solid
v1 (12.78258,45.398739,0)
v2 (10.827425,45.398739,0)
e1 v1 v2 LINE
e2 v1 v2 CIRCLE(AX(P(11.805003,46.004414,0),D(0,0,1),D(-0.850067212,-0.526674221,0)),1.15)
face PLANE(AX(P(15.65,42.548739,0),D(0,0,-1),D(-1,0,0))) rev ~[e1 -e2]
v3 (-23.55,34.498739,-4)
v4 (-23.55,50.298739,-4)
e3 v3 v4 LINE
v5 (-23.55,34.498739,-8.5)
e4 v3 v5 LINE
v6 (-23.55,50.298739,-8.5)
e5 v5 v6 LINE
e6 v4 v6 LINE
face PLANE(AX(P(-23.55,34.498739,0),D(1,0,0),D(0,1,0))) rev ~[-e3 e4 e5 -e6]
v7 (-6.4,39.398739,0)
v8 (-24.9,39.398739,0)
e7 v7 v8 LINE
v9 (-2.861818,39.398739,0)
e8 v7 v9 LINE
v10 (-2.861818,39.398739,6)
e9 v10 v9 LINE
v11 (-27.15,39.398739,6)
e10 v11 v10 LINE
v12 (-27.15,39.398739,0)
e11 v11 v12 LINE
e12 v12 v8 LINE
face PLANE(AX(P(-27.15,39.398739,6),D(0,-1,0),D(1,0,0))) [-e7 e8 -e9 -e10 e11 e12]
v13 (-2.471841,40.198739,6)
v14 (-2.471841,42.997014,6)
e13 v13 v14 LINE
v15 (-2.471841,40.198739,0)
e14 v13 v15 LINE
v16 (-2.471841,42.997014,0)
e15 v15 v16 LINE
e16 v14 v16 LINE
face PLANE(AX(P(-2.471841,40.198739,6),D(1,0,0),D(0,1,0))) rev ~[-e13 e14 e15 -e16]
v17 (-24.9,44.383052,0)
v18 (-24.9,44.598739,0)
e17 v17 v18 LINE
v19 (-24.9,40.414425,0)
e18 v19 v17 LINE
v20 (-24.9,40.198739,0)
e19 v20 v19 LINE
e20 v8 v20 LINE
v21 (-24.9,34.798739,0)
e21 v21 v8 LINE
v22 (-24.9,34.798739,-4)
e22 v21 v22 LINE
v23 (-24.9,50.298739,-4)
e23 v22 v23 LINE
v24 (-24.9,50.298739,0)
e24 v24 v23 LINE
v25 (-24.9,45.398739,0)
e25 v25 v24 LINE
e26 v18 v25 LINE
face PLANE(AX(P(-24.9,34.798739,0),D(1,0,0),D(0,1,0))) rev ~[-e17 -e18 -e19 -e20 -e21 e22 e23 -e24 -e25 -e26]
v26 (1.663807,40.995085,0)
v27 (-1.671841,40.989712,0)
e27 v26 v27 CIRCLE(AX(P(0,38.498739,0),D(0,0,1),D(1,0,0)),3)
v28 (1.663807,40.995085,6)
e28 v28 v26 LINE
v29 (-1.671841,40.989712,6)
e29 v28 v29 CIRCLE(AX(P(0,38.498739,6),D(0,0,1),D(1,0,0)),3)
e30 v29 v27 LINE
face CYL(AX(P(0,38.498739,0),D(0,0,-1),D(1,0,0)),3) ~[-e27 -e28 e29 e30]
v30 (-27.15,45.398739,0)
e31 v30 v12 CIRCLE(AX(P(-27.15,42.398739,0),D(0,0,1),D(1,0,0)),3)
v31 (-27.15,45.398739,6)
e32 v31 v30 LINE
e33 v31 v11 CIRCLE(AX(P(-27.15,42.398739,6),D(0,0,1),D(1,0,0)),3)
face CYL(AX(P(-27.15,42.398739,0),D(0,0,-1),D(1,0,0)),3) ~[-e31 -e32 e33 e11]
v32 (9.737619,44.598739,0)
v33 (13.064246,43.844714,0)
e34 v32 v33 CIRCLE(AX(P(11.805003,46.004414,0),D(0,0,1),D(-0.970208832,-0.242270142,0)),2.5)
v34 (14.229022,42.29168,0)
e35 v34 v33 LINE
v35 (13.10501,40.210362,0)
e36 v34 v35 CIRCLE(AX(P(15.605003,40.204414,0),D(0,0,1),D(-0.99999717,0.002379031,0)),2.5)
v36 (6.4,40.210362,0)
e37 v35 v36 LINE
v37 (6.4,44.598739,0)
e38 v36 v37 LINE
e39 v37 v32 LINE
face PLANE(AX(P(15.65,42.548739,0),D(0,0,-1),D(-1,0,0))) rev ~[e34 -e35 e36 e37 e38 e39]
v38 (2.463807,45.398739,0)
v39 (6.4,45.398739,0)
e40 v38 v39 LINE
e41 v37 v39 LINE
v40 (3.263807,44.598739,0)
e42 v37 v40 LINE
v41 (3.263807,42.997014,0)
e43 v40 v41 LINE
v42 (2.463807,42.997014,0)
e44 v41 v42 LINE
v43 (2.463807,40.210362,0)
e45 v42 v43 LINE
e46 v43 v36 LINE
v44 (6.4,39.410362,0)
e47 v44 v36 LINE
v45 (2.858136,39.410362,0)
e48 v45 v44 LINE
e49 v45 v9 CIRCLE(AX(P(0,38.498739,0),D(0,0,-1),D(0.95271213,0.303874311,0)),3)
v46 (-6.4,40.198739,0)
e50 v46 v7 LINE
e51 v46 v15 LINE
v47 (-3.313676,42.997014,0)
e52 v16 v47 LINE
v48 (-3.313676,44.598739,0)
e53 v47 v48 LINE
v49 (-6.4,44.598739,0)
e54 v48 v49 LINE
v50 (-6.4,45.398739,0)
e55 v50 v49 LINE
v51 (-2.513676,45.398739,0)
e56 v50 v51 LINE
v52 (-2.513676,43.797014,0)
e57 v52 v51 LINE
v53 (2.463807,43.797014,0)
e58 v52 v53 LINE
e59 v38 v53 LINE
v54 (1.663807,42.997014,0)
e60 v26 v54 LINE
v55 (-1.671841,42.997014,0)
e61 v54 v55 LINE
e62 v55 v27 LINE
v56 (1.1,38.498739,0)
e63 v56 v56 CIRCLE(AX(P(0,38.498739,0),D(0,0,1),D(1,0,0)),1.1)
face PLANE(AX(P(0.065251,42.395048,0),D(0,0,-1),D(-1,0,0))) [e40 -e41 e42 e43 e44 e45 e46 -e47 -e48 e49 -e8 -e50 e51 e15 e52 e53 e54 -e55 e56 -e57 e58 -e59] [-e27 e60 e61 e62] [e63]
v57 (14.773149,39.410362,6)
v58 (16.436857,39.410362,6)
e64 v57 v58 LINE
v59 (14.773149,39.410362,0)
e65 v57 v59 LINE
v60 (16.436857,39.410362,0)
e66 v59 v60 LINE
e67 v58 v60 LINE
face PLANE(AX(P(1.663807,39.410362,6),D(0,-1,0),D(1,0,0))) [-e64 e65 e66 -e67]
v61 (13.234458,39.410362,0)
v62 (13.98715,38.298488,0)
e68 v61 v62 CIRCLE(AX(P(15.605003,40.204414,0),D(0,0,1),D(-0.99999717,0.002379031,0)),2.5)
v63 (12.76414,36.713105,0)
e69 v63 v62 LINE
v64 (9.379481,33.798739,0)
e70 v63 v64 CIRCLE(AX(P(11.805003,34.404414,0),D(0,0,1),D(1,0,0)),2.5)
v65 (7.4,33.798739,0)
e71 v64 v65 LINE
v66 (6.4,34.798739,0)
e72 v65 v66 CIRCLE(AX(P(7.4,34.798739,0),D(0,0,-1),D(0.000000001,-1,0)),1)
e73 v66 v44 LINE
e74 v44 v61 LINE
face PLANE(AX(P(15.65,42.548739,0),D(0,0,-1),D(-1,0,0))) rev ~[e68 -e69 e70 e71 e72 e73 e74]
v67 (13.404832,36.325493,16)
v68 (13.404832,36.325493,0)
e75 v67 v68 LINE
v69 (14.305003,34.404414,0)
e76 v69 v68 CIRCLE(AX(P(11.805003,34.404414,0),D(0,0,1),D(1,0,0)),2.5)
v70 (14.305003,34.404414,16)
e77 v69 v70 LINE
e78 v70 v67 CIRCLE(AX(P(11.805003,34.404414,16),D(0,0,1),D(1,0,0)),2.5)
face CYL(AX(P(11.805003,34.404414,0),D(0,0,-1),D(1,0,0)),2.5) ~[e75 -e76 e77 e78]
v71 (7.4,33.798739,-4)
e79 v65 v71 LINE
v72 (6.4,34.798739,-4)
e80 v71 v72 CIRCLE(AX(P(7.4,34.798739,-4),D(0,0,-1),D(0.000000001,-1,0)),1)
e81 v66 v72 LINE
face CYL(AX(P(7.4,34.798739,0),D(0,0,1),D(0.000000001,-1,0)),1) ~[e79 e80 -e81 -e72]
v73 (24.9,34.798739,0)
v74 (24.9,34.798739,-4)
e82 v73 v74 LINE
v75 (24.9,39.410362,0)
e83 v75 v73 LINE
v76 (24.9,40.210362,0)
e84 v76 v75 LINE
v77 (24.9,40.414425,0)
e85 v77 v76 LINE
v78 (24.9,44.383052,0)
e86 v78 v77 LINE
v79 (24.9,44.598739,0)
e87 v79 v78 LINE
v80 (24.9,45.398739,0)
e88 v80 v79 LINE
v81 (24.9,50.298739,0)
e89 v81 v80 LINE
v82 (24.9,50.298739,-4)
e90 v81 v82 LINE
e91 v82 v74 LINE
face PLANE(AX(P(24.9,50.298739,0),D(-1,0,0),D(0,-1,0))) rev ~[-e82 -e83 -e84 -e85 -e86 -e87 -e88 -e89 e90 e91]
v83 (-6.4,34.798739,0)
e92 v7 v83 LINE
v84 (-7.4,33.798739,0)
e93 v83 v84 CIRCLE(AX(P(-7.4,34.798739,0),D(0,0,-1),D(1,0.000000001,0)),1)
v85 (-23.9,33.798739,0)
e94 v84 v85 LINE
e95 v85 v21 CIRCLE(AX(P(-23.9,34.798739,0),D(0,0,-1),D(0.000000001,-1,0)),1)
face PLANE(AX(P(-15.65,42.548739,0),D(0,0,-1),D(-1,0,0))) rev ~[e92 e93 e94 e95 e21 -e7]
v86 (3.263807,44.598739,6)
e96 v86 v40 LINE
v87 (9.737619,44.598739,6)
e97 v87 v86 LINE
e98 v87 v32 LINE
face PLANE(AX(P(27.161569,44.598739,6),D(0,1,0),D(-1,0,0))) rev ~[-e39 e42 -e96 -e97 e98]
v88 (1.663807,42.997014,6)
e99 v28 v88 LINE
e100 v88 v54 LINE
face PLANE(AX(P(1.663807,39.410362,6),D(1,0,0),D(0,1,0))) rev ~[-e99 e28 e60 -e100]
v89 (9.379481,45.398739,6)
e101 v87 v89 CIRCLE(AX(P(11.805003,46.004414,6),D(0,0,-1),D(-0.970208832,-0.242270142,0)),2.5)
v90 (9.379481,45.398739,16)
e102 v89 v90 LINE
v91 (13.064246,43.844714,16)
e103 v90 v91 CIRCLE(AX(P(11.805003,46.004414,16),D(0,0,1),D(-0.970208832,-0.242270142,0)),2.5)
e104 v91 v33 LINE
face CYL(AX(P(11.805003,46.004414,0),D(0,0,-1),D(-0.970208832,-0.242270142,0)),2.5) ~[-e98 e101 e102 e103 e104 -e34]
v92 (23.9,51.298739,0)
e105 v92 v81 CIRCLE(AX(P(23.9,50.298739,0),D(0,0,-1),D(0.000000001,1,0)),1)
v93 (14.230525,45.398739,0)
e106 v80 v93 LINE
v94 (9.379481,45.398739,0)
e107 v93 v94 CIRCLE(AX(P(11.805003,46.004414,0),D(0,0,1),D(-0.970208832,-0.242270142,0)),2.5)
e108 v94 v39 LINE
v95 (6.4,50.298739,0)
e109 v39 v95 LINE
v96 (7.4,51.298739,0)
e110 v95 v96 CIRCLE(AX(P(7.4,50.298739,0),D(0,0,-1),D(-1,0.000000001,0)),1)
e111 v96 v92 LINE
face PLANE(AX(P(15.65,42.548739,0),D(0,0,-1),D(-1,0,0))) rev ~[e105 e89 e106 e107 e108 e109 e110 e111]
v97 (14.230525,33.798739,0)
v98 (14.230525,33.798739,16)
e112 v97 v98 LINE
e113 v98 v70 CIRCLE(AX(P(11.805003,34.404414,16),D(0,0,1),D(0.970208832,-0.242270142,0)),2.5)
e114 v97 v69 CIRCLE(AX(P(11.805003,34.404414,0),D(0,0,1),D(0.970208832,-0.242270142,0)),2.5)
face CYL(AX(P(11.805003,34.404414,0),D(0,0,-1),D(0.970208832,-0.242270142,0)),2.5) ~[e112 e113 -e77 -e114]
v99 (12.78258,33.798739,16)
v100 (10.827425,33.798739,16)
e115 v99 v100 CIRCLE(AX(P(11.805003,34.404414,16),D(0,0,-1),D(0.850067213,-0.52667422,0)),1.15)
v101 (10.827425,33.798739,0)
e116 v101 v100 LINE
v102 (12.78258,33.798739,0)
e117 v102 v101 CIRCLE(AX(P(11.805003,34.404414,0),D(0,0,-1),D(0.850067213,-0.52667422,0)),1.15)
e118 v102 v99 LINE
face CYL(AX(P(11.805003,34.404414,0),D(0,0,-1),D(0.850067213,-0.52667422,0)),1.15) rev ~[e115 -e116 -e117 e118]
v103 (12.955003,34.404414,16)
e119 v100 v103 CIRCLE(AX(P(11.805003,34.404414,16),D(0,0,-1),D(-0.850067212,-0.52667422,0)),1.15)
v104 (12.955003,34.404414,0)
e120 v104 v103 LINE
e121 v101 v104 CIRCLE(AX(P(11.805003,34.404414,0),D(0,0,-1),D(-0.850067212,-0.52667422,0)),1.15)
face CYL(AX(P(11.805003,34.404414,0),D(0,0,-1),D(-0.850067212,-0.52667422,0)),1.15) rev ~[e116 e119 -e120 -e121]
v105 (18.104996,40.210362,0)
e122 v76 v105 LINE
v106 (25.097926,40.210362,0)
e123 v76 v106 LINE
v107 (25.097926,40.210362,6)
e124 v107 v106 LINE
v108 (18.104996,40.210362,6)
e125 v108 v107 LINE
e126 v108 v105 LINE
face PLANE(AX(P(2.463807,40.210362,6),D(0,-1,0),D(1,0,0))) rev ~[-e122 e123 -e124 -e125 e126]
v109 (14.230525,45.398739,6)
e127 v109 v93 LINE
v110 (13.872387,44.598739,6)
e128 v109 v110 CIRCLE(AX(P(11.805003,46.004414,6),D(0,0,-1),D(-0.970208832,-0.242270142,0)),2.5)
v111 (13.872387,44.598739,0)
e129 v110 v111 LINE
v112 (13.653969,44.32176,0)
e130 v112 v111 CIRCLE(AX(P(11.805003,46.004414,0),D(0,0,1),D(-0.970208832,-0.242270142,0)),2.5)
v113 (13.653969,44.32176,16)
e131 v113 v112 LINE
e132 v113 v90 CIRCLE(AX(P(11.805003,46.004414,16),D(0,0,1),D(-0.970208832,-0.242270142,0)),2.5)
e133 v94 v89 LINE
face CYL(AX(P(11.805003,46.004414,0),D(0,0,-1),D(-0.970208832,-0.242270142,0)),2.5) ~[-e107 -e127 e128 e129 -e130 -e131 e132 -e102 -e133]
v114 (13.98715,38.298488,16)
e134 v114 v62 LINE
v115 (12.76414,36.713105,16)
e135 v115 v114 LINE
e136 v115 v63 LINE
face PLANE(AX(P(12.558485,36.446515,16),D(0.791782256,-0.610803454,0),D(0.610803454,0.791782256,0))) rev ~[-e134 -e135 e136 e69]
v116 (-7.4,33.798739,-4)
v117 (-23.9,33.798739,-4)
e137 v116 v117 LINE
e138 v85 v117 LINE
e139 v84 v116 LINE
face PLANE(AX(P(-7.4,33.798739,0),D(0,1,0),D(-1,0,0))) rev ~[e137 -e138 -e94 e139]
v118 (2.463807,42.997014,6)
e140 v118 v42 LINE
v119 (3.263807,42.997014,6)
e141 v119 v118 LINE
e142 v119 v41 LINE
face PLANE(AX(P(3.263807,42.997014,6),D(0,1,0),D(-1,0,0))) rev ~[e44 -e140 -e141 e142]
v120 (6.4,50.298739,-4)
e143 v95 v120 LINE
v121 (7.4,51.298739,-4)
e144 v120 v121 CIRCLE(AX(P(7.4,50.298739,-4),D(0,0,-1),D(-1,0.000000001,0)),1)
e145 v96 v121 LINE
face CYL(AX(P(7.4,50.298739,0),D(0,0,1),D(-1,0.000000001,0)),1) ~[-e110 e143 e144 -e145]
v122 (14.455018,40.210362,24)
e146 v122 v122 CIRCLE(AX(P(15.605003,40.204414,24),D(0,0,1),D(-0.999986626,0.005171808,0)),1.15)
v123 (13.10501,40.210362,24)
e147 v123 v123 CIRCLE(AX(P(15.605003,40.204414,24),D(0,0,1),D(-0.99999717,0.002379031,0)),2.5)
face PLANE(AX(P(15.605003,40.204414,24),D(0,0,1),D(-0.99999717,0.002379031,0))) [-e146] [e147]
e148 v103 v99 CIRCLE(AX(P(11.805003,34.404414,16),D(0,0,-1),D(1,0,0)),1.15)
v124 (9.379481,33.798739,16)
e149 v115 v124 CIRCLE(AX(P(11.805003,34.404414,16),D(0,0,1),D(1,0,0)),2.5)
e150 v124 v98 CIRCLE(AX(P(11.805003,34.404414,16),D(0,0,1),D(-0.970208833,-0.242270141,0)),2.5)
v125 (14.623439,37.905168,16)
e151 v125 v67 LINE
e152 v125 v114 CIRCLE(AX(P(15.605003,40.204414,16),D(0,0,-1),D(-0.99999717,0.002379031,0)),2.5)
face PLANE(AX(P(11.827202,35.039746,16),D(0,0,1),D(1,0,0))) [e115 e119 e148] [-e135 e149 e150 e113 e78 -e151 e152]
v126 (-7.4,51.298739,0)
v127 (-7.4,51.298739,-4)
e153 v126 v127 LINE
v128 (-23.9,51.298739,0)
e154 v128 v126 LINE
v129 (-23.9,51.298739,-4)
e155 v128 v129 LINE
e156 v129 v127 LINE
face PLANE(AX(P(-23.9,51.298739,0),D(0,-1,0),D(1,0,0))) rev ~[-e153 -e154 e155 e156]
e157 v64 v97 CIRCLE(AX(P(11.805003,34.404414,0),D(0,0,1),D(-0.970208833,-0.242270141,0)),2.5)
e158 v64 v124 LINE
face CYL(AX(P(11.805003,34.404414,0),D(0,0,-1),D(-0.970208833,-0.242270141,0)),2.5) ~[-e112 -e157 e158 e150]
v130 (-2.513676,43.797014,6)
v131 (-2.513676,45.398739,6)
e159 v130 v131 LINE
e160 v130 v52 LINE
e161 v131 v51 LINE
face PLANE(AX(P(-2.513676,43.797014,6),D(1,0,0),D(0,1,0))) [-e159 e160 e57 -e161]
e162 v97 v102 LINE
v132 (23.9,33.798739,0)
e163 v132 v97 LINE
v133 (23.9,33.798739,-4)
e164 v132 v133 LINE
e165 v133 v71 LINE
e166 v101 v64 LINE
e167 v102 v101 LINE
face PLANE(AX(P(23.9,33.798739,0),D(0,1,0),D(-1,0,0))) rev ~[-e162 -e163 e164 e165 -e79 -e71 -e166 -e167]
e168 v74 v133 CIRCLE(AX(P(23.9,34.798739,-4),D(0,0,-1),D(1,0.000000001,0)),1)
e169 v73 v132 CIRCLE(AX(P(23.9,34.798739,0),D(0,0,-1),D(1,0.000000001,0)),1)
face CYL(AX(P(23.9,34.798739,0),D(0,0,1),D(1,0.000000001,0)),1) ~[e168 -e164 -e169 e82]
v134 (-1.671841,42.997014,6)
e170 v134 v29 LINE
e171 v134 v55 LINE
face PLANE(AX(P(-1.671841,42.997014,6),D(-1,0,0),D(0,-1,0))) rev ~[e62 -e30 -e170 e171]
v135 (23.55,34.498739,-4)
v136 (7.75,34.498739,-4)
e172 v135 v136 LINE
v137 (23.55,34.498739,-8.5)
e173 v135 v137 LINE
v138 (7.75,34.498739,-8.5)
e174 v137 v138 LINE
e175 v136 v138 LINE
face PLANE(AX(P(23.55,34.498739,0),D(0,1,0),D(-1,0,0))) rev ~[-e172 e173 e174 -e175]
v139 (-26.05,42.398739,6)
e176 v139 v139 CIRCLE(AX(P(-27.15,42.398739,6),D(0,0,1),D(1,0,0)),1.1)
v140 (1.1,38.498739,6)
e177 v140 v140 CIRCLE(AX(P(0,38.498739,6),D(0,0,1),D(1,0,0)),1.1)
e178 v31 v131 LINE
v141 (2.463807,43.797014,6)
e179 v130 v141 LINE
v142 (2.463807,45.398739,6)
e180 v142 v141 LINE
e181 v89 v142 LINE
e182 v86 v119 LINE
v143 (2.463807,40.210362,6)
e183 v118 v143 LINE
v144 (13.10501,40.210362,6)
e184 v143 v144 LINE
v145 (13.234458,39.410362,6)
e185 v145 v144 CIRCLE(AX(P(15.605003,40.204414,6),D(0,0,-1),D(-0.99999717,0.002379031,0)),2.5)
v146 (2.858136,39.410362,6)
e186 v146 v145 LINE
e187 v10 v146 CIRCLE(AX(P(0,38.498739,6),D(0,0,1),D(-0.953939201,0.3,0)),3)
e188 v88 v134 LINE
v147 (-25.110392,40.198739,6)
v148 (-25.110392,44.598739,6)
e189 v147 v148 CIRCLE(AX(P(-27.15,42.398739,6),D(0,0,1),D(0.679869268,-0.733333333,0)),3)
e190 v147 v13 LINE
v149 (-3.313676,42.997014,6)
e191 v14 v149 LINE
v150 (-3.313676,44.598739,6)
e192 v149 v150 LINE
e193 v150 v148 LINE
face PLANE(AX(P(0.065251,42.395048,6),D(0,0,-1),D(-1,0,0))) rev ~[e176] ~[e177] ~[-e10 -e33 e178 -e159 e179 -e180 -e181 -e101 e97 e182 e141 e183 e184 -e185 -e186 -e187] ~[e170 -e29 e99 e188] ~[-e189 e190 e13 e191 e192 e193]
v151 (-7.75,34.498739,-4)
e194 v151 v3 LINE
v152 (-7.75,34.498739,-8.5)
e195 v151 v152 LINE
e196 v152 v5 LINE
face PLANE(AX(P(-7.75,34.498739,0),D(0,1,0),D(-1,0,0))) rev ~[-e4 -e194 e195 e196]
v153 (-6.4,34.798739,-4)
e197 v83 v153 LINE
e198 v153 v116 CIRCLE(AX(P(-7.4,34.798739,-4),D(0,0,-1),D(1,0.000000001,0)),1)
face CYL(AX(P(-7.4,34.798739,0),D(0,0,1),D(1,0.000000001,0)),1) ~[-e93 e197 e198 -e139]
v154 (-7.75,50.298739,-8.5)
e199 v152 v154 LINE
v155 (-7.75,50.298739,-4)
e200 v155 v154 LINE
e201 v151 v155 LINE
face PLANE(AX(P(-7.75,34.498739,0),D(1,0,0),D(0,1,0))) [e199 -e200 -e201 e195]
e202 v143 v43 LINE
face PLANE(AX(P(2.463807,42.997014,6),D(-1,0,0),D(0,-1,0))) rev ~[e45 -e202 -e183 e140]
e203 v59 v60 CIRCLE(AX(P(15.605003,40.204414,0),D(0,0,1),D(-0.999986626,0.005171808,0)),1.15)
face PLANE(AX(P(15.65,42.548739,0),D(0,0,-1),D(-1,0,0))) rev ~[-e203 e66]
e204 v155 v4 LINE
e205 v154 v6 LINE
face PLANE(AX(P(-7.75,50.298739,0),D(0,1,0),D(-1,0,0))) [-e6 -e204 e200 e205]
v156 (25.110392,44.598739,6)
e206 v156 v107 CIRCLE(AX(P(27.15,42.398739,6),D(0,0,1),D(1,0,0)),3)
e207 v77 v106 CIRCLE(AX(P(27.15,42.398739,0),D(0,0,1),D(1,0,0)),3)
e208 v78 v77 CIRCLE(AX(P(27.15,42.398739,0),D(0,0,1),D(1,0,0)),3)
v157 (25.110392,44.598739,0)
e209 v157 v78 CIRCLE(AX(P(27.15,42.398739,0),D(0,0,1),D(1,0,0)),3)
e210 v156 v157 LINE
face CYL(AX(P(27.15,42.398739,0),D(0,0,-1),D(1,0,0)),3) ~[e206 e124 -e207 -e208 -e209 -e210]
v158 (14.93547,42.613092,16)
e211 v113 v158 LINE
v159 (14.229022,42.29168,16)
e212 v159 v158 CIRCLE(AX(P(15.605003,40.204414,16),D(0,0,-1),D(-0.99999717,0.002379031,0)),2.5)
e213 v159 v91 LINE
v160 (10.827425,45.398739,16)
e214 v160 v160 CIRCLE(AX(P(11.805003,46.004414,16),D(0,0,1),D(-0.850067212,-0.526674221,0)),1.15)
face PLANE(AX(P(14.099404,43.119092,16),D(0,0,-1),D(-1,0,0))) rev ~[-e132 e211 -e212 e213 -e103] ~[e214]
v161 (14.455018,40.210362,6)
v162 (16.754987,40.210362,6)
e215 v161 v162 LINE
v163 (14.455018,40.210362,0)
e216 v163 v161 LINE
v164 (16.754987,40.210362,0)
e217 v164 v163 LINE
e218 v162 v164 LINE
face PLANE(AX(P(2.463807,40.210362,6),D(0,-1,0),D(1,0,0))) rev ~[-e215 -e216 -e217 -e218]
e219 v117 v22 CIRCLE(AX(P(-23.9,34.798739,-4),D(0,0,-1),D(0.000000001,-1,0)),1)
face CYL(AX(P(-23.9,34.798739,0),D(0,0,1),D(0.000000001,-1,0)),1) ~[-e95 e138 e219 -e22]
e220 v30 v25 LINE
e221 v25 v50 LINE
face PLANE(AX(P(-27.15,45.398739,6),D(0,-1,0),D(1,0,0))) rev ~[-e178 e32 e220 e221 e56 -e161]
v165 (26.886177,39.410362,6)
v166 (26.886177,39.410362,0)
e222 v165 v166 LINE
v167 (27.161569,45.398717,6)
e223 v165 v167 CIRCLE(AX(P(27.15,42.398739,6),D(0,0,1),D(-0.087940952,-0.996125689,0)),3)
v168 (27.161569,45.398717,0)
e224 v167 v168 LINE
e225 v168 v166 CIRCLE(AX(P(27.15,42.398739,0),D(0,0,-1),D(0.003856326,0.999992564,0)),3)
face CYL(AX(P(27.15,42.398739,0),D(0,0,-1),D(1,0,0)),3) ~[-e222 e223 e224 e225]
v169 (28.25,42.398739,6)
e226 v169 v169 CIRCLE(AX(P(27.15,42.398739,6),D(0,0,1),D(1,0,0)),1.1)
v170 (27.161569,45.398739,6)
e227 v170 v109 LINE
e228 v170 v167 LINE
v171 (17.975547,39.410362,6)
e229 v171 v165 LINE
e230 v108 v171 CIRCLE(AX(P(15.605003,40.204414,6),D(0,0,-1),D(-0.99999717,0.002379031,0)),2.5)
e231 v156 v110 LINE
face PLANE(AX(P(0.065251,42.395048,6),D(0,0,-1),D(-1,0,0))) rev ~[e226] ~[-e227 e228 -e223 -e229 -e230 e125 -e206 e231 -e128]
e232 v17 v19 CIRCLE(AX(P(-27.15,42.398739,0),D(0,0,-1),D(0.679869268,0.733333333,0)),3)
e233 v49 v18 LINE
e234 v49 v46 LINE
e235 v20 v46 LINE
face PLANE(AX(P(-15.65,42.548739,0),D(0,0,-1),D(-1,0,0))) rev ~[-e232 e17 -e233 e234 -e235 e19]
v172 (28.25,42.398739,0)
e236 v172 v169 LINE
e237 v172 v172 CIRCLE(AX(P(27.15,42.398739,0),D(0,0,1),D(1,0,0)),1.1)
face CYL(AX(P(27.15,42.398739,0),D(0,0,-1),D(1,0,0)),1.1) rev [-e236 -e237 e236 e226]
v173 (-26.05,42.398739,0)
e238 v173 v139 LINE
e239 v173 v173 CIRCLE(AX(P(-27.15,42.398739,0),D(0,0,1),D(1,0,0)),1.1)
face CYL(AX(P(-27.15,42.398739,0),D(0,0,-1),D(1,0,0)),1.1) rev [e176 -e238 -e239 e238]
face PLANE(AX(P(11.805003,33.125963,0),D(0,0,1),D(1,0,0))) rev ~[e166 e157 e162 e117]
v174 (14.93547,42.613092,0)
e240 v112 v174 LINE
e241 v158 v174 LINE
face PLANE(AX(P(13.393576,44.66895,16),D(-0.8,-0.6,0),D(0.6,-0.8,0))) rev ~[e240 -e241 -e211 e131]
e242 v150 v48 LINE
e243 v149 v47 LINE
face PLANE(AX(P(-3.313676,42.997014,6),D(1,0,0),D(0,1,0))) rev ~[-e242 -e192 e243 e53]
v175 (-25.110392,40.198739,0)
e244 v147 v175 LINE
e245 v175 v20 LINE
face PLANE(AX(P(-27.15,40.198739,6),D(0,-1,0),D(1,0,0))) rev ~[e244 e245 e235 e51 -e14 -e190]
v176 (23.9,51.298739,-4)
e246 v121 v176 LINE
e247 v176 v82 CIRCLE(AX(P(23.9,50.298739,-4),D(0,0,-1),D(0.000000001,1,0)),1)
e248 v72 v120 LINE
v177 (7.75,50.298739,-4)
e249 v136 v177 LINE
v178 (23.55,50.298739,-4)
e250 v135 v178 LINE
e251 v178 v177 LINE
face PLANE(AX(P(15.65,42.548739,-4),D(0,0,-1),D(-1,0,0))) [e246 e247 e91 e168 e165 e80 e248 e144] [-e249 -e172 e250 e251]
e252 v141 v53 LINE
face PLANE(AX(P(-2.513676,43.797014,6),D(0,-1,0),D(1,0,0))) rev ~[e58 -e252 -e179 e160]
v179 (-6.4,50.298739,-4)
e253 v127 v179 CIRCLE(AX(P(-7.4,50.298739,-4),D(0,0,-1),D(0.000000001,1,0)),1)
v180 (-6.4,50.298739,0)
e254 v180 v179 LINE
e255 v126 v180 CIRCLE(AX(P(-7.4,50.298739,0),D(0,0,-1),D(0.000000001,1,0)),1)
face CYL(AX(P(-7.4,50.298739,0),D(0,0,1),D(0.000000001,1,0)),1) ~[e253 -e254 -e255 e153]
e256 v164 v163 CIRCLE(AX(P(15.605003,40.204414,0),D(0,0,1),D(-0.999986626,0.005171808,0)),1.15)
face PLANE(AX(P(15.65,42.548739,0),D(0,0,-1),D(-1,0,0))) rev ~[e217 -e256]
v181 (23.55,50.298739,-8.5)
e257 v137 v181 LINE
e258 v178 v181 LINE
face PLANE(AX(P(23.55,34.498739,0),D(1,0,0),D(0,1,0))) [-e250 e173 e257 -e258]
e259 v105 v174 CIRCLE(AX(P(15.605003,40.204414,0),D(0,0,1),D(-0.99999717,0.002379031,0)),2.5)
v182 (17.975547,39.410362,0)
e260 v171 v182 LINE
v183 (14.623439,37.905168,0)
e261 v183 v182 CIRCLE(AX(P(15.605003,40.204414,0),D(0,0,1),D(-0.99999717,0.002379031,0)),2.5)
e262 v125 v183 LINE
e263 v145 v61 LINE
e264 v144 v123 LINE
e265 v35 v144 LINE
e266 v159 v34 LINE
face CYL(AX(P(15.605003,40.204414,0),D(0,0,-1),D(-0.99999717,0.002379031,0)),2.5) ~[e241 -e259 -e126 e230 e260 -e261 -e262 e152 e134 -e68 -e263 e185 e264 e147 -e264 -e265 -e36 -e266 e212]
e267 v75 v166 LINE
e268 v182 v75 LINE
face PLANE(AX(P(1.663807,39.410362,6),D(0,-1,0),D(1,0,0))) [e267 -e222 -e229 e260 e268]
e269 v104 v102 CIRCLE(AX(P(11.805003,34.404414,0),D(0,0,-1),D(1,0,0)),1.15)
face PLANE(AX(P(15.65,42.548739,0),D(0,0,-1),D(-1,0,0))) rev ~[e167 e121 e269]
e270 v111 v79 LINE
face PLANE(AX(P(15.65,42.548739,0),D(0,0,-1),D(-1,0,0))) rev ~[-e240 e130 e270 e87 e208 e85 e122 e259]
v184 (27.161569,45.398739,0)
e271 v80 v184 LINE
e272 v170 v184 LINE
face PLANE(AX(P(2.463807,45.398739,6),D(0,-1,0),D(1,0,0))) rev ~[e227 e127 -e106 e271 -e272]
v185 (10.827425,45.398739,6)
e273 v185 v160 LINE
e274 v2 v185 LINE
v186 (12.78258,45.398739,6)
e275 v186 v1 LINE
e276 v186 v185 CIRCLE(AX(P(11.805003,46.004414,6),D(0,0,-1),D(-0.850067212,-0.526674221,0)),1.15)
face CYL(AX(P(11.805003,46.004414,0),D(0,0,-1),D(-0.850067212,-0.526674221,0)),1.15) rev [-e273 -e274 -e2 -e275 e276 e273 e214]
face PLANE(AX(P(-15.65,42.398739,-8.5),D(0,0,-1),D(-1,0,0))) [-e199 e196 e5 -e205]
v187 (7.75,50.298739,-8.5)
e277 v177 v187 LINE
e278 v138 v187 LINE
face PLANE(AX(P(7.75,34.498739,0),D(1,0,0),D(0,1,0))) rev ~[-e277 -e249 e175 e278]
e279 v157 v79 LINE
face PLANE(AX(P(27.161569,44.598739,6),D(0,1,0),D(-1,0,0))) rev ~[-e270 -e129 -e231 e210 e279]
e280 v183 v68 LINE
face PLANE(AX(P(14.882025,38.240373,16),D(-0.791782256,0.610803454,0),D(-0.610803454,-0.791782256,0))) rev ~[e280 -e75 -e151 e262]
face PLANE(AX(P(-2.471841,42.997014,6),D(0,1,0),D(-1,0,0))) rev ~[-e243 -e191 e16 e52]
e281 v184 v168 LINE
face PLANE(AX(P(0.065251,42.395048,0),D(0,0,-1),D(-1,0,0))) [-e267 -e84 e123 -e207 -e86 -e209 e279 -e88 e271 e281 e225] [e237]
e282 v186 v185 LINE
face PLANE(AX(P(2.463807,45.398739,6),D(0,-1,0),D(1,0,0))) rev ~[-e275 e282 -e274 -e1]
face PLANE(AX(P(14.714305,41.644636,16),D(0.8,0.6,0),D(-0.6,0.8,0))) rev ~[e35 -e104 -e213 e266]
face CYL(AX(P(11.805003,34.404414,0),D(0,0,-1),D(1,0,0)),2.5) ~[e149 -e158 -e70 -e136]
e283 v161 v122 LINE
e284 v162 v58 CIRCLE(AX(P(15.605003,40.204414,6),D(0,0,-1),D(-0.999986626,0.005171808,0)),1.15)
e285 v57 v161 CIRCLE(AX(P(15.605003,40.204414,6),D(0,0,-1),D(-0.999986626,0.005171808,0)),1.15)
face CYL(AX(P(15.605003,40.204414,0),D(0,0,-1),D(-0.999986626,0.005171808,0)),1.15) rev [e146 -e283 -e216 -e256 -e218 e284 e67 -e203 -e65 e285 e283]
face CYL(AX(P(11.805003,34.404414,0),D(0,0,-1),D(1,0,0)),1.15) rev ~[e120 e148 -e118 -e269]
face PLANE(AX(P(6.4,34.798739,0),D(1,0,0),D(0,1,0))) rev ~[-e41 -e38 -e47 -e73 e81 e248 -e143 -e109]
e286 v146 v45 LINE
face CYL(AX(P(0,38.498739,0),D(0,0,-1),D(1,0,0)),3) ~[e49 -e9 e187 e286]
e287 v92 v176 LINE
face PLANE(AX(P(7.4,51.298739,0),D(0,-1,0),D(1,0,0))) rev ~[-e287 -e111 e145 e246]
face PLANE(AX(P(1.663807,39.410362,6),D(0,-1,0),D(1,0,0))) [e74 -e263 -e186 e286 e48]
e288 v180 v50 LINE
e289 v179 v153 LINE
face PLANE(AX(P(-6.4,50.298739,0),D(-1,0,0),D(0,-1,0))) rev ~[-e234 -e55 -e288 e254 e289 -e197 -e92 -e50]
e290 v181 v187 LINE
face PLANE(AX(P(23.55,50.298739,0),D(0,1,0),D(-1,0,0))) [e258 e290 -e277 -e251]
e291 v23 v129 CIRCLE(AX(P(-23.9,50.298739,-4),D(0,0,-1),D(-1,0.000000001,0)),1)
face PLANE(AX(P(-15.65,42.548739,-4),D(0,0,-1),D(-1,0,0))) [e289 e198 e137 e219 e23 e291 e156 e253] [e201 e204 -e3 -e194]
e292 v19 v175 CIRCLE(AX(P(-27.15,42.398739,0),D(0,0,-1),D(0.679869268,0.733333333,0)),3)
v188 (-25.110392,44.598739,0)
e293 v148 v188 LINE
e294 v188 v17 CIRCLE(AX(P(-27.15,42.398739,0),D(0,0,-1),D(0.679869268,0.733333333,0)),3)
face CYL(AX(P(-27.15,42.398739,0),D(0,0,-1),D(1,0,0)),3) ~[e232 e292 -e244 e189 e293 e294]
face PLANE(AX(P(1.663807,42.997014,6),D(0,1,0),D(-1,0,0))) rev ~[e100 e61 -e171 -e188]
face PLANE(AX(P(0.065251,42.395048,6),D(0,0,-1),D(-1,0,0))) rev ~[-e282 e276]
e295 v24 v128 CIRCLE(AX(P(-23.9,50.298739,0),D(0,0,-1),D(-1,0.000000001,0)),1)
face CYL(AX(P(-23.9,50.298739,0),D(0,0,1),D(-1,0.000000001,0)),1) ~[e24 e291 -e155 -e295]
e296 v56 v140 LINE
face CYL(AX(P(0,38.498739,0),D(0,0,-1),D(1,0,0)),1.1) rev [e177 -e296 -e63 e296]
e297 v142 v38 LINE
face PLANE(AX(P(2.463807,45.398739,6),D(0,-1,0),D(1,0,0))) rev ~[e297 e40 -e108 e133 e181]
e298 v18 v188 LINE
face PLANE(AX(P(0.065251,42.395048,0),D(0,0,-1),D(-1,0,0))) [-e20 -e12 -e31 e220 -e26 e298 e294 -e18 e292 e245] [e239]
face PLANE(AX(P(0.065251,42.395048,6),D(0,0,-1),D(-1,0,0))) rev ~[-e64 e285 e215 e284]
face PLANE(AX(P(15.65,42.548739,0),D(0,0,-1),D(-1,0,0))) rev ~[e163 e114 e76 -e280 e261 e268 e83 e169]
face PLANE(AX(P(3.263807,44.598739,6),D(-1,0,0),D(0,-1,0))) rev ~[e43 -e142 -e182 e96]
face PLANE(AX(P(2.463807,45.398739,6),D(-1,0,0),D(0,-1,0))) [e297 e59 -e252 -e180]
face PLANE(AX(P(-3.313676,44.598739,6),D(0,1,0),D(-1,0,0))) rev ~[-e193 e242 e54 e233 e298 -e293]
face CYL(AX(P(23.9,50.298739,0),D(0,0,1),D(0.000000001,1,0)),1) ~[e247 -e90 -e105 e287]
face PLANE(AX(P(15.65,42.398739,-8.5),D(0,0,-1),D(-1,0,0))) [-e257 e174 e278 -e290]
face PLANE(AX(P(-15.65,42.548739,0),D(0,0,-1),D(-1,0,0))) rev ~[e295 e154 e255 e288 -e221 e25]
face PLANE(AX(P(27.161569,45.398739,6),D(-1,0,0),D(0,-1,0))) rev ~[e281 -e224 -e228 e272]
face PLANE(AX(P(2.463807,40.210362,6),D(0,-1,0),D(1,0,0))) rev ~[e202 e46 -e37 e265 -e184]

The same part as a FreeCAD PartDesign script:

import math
import FreeCAD as App
import Part
import Sketcher
from FreeCAD import Vector
Q = App.Units.Quantity


def add_polygon(sketch, points):
    """Adds a closed chain of lines whose ends are joined by coincident constraints."""
    first, n = sketch.GeometryCount, len(points)
    for a, b in zip(points, points[1:] + points[:1]):
        sketch.addGeometry(Part.LineSegment(App.Vector(*a, 0), App.Vector(*b, 0)), False)
    for i in range(n):
        sketch.addConstraint(Sketcher.Constraint("Coincident", first + i, 2, first + (i + 1) % n, 1))

doc = App.newDocument("Part")
params = doc.addObject("Spreadsheet::Sheet", "Params")
for row, (alias, value) in enumerate([
    ("sketch1_diameter", "6 mm"),
    ("sketch1_diameter2", "2.2 mm"),
    ("pad1_length", "6 mm"),
    ("sketch2_diameter", "6 mm"),
    ("sketch2_diameter2", "2.2 mm"),
    ("pad2_length", "6 mm"),
    ("sketch3_diameter", "6 mm"),
    ("sketch3_diameter2", "2.2 mm"),
    ("pad3_length", "6 mm"),
    ("sketch4_width", "0.8 mm"),
    ("pad4_length", "6 mm"),
    ("sketch5_width", "15.8 mm"),
    ("pad5_length", "8.5 mm"),
    ("sketch6_radius", "1 mm"),
    ("sketch6_width", "16.5 mm"),
    ("sketch6_height", "15.5 mm"),
    ("pad6_length", "4 mm"),
    ("sketch7_diameter", "5 mm"),
    ("sketch7_diameter2", "2.3 mm"),
    ("pad7_length", "24 mm"),
    ("sketch8_diameter", "5 mm"),
    ("sketch8_diameter2", "2.3 mm"),
    ("pad8_length", "16 mm"),
    ("pad9_length", "16 mm"),
], start=1):
    params.set(f"A{row}", alias)
    params.set(f"B{row}", "=" + value)
    params.setAlias(f"B{row}", alias)

body = doc.addObject("PartDesign::Body", "Body")

# Sketch on XY plane
sketch1 = body.newObject("Sketcher::SketchObject", "Sketch")
sketch1.AttachmentSupport = (doc.getObject("XY_Plane"), [""])
sketch1.MapMode = "FlatFace"
sketch1.addGeometry(Part.Circle(Vector(-27.1, 42.4, 0), Vector(0, 0, 1), 3), False)
sketch1.addGeometry(Part.Circle(Vector(-27.1, 42.4, 0), Vector(0, 0, 1), 1.1), False)
sketch1.addConstraint(Sketcher.Constraint("Coincident", 1, 3, 0, 3))
sketch1.addConstraint(Sketcher.Constraint("Diameter", 0, Q("6 mm")))
sketch1.addConstraint(Sketcher.Constraint("Diameter", 1, Q("2.2 mm")))
sketch1.addConstraint(Sketcher.Constraint("DistanceX", 0, 3, -1, 1, Q("27.15 mm")))
sketch1.addConstraint(Sketcher.Constraint("DistanceY", -1, 1, 0, 3, Q("42.398739 mm")))
sketch1.setExpression("Constraints[1]", "Params.sketch1_diameter")
sketch1.setExpression("Constraints[2]", "Params.sketch1_diameter2")
pad1 = body.newObject("PartDesign::Pad", "Pad")
pad1.Profile = sketch1
pad1.setExpression("Length", "Params.pad1_length")
body2 = doc.addObject("PartDesign::Body", "Body001")

# Sketch on XY plane
sketch2 = body2.newObject("Sketcher::SketchObject", "Sketch001")
sketch2.AttachmentSupport = (doc.getObject("XY_Plane001"), [""])
sketch2.MapMode = "FlatFace"
sketch2.addGeometry(Part.Circle(Vector(0, 38.5, 0), Vector(0, 0, 1), 3), False)
sketch2.addGeometry(Part.Circle(Vector(0, 38.5, 0), Vector(0, 0, 1), 1.1), False)
sketch2.addConstraint(Sketcher.Constraint("Coincident", 1, 3, 0, 3))
sketch2.addConstraint(Sketcher.Constraint("PointOnObject", 0, 3, -2))
sketch2.addConstraint(Sketcher.Constraint("Diameter", 0, Q("6 mm")))
sketch2.addConstraint(Sketcher.Constraint("Diameter", 1, Q("2.2 mm")))
sketch2.addConstraint(Sketcher.Constraint("DistanceY", -1, 1, 0, 3, Q("38.498739 mm")))
sketch2.setExpression("Constraints[2]", "Params.sketch2_diameter")
sketch2.setExpression("Constraints[3]", "Params.sketch2_diameter2")
pad2 = body2.newObject("PartDesign::Pad", "Pad001")
pad2.Profile = sketch2
pad2.setExpression("Length", "Params.pad2_length")
body3 = doc.addObject("PartDesign::Body", "Body002")

# Sketch on XY plane
sketch3 = body3.newObject("Sketcher::SketchObject", "Sketch002")
sketch3.AttachmentSupport = (doc.getObject("XY_Plane002"), [""])
sketch3.MapMode = "FlatFace"
sketch3.addGeometry(Part.Circle(Vector(27.1, 42.4, 0), Vector(0, 0, 1), 3), False)
sketch3.addGeometry(Part.Circle(Vector(27.1, 42.4, 0), Vector(0, 0, 1), 1.1), False)
sketch3.addConstraint(Sketcher.Constraint("Coincident", 1, 3, 0, 3))
sketch3.addConstraint(Sketcher.Constraint("Diameter", 0, Q("6 mm")))
sketch3.addConstraint(Sketcher.Constraint("Diameter", 1, Q("2.2 mm")))
sketch3.addConstraint(Sketcher.Constraint("DistanceX", -1, 1, 0, 3, Q("27.15 mm")))
sketch3.addConstraint(Sketcher.Constraint("DistanceY", -1, 1, 0, 3, Q("42.398739 mm")))
sketch3.setExpression("Constraints[1]", "Params.sketch3_diameter")
sketch3.setExpression("Constraints[2]", "Params.sketch3_diameter2")
pad3 = body3.newObject("PartDesign::Pad", "Pad002")
pad3.Profile = sketch3
pad3.setExpression("Length", "Params.pad3_length")
body.AllowCompound = True
doc.recompute()

boolean = body.newObject("PartDesign::Boolean", "Boolean")
boolean.Type = "Fuse"
boolean.addObjects([body2])
doc.recompute()

boolean2 = body.newObject("PartDesign::Boolean", "Boolean001")
boolean2.Type = "Fuse"
boolean2.addObjects([body3])

# Sketch on XY plane
sketch4 = body.newObject("Sketcher::SketchObject", "Sketch003")
sketch4.AttachmentSupport = (doc.getObject("XY_Plane"), [""])
sketch4.MapMode = "FlatFace"
sketch4.AttachmentOffset = App.Placement(Vector(0, 0, 6), App.Rotation())
add_polygon(sketch4, [(-2.5, 45.4), (-27.1, 45.4), (-27.1, 44.6), (-3.3, 44.6), (-3.3, 43), (-2.5, 43), (-2.5, 40.2), (-27.1, 40.2), (-27.1, 39.4), (-1.7, 39.4), (-1.7, 43), (1.7, 43), (1.7, 39.4), (27.4, 39.4), (27.4, 40.2), (2.5, 40.2), (2.5, 43), (3.3, 43), (3.3, 44.6), (27.2, 44.6), (27.2, 45.4), (2.5, 45.4), (2.5, 43.8), (-2.5, 43.8)])  # lines 0-23
sketch4.addConstraint(Sketcher.Constraint("Horizontal", 0))
sketch4.addConstraint(Sketcher.Constraint("Vertical", 1))
sketch4.addConstraint(Sketcher.Constraint("Horizontal", 2))
sketch4.addConstraint(Sketcher.Constraint("Vertical", 3))
sketch4.addConstraint(Sketcher.Constraint("Horizontal", 4))
sketch4.addConstraint(Sketcher.Constraint("Vertical", 5))
sketch4.addConstraint(Sketcher.Constraint("Horizontal", 6))
sketch4.addConstraint(Sketcher.Constraint("Vertical", 7))
sketch4.addConstraint(Sketcher.Constraint("Horizontal", 8))
sketch4.addConstraint(Sketcher.Constraint("Vertical", 9))
sketch4.addConstraint(Sketcher.Constraint("Horizontal", 10))
sketch4.addConstraint(Sketcher.Constraint("Vertical", 11))
sketch4.addConstraint(Sketcher.Constraint("Horizontal", 12))
sketch4.addConstraint(Sketcher.Constraint("Vertical", 13))
sketch4.addConstraint(Sketcher.Constraint("Horizontal", 14))
sketch4.addConstraint(Sketcher.Constraint("Vertical", 15))
sketch4.addConstraint(Sketcher.Constraint("Horizontal", 16))
sketch4.addConstraint(Sketcher.Constraint("Vertical", 17))
sketch4.addConstraint(Sketcher.Constraint("Horizontal", 18))
sketch4.addConstraint(Sketcher.Constraint("Vertical", 19))
sketch4.addConstraint(Sketcher.Constraint("Horizontal", 20))
sketch4.addConstraint(Sketcher.Constraint("Vertical", 21))
sketch4.addConstraint(Sketcher.Constraint("Horizontal", 22))
sketch4.addConstraint(Sketcher.Constraint("Vertical", 23))
sketch4.addConstraint(Sketcher.Constraint("Horizontal", 4, 2, 9, 2))
sketch4.addConstraint(Sketcher.Constraint("Horizontal", 10, 2, 15, 2))
sketch4.addConstraint(Sketcher.Constraint("Horizontal", 2, 2, 17, 2))
sketch4.addConstraint(Sketcher.Constraint("Horizontal", 0, 2, 19, 2))
sketch4.addConstraint(Sketcher.Constraint("Vertical", 1, 2, 6, 2))
sketch4.addConstraint(Sketcher.Constraint("Vertical", 15, 2, 20, 2))
sketch4.addConstraint(Sketcher.Constraint("Equal", 16, 1))
sketch4.addConstraint(Sketcher.Constraint("Equal", 1, 7))
sketch4.addConstraint(Sketcher.Constraint("Equal", 7, 13))
sketch4.addConstraint(Sketcher.Constraint("Equal", 17, 21))
sketch4.addConstraint(Sketcher.Constraint("DistanceX", 16, 1, 16, 2, Q("0.8 mm")))
sketch4.addConstraint(Sketcher.Constraint("DistanceY", 7, 2, 0, 2, Q("6 mm")))
sketch4.addConstraint(Sketcher.Constraint("DistanceX", 5, 2, 8, 2, Q("0.8 mm")))
sketch4.addConstraint(Sketcher.Constraint("DistanceX", 11, 2, 14, 2, Q("0.8 mm")))
sketch4.addConstraint(Sketcher.Constraint("DistanceX", 3, 2, 22, 2, Q("0.8 mm")))
sketch4.addConstraint(Sketcher.Constraint("DistanceX", 0, 2, -1, 1, Q("27.15 mm")))
sketch4.addConstraint(Sketcher.Constraint("DistanceX", 6, 2, 6, 1, Q("24.678159 mm")))
sketch4.addConstraint(Sketcher.Constraint("DistanceX", 10, 1, 10, 2, Q("3.335649 mm")))
sketch4.addConstraint(Sketcher.Constraint("DistanceX", 18, 1, 18, 2, Q("23.897762 mm")))
sketch4.addConstraint(Sketcher.Constraint("DistanceY", 11, 2, 11, 1, Q("3.586652 mm")))
sketch4.addConstraint(Sketcher.Constraint("DistanceX", 0, 2, 0, 1, Q("24.636324 mm")))
sketch4.addConstraint(Sketcher.Constraint("DistanceX", 12, 1, 12, 2, Q("25.750015 mm")))
sketch4.addConstraint(Sketcher.Constraint("DistanceY", 3, 2, 3, 1, Q("1.601725 mm")))
sketch4.addConstraint(Sketcher.Constraint("DistanceY", -1, 1, 0, 2, Q("45.398739 mm")))
sketch4.setExpression("Constraints[58]", "Params.sketch4_width")
pad4 = body.newObject("PartDesign::Pad", "Pad003")
pad4.Profile = sketch4
pad4.setExpression("Length", "Params.pad4_length")
pad4.Reversed = True

# Sketch on XY plane
sketch5 = body.newObject("Sketcher::SketchObject", "Sketch004")
sketch5.AttachmentSupport = (doc.getObject("XY_Plane"), [""])
sketch5.MapMode = "FlatFace"
add_polygon(sketch5, [(-8, 50), (-8, 34), (-24, 34), (-24, 50)])  # lines 0-3
add_polygon(sketch5, [(24, 50), (24, 34), (8, 34), (8, 50)])  # lines 4-7
sketch5.addConstraint(Sketcher.Constraint("Vertical", 0))
sketch5.addConstraint(Sketcher.Constraint("Horizontal", 1))
sketch5.addConstraint(Sketcher.Constraint("Vertical", 2))
sketch5.addConstraint(Sketcher.Constraint("Horizontal", 3))
sketch5.addConstraint(Sketcher.Constraint("Vertical", 4))
sketch5.addConstraint(Sketcher.Constraint("Horizontal", 5))
sketch5.addConstraint(Sketcher.Constraint("Vertical", 6))
sketch5.addConstraint(Sketcher.Constraint("Horizontal", 7))
sketch5.addConstraint(Sketcher.Constraint("Symmetric", 1, 2, 4, 2, -2))
sketch5.addConstraint(Sketcher.Constraint("Symmetric", 3, 2, 6, 2, -2))
sketch5.addConstraint(Sketcher.Constraint("Equal", 7, 0))
sketch5.addConstraint(Sketcher.Constraint("DistanceX", 1, 2, 1, 1, Q("15.8 mm")))
sketch5.addConstraint(Sketcher.Constraint("DistanceX", 0, 2, 4, 2, Q("31.3 mm")))
sketch5.addConstraint(Sketcher.Constraint("DistanceY", -1, 1, 0, 2, Q("34.498739 mm")))
sketch5.setExpression("Constraints[19]", "Params.sketch5_width")
pad5 = body.newObject("PartDesign::Pad", "Pad004")
pad5.Profile = sketch5
pad5.setExpression("Length", "Params.pad5_length")
pad5.Reversed = True

# Sketch on XY plane
sketch6 = body.newObject("Sketcher::SketchObject", "Sketch005")
sketch6.AttachmentSupport = (doc.getObject("XY_Plane"), [""])
sketch6.MapMode = "FlatFace"
sketch6.addGeometry(Part.LineSegment(Vector(-7.4, 33.8, 0), Vector(-23.9, 33.8, 0)), False)
sketch6.addGeometry(Part.ArcOfCircle(Part.Circle(Vector(-23.9, 34.8, 0), Vector(0, 0, 1), 1), math.radians(180), math.radians(270)), False)
sketch6.addGeometry(Part.LineSegment(Vector(-24.9, 34.8, 0), Vector(-24.9, 50.3, 0)), False)
sketch6.addGeometry(Part.ArcOfCircle(Part.Circle(Vector(-23.9, 50.3, 0), Vector(0, 0, 1), 1), math.radians(90), math.radians(180)), False)
sketch6.addGeometry(Part.LineSegment(Vector(-23.9, 51.3, 0), Vector(-7.4, 51.3, 0)), False)
sketch6.addGeometry(Part.ArcOfCircle(Part.Circle(Vector(-7.4, 50.3, 0), Vector(0, 0, 1), 1), math.radians(0), math.radians(90)), False)
sketch6.addGeometry(Part.LineSegment(Vector(-6.4, 50.3, 0), Vector(-6.4, 34.8, 0)), False)
sketch6.addGeometry(Part.ArcOfCircle(Part.Circle(Vector(-7.4, 34.8, 0), Vector(0, 0, 1), 1), math.radians(-90), math.radians(0)), False)
sketch6.addGeometry(Part.LineSegment(Vector(6.4, 34.8, 0), Vector(6.4, 50.3, 0)), False)
sketch6.addGeometry(Part.ArcOfCircle(Part.Circle(Vector(7.4, 50.3, 0), Vector(0, 0, 1), 1), math.radians(90), math.radians(180)), False)
sketch6.addGeometry(Part.LineSegment(Vector(7.4, 51.3, 0), Vector(23.9, 51.3, 0)), False)
sketch6.addGeometry(Part.ArcOfCircle(Part.Circle(Vector(23.9, 50.3, 0), Vector(0, 0, 1), 1), math.radians(0), math.radians(90)), False)
sketch6.addGeometry(Part.LineSegment(Vector(24.9, 50.3, 0), Vector(24.9, 34.8, 0)), False)
sketch6.addGeometry(Part.ArcOfCircle(Part.Circle(Vector(23.9, 34.8, 0), Vector(0, 0, 1), 1), math.radians(-90), math.radians(0)), False)
sketch6.addGeometry(Part.LineSegment(Vector(23.9, 33.8, 0), Vector(7.4, 33.8, 0)), False)
sketch6.addGeometry(Part.ArcOfCircle(Part.Circle(Vector(7.4, 34.8, 0), Vector(0, 0, 1), 1), math.radians(180), math.radians(270)), False)
sketch6.addConstraint(Sketcher.Constraint("Tangent", 0, 2, 1, 2))
sketch6.addConstraint(Sketcher.Constraint("Tangent", 1, 1, 2, 1))
sketch6.addConstraint(Sketcher.Constraint("Tangent", 2, 2, 3, 2))
sketch6.addConstraint(Sketcher.Constraint("Tangent", 3, 1, 4, 1))
sketch6.addConstraint(Sketcher.Constraint("Tangent", 4, 2, 5, 2))
sketch6.addConstraint(Sketcher.Constraint("Tangent", 5, 1, 6, 1))
sketch6.addConstraint(Sketcher.Constraint("Tangent", 6, 2, 7, 2))
sketch6.addConstraint(Sketcher.Constraint("Tangent", 7, 1, 0, 1))
sketch6.addConstraint(Sketcher.Constraint("Tangent", 8, 2, 9, 2))
sketch6.addConstraint(Sketcher.Constraint("Tangent", 9, 1, 10, 1))
sketch6.addConstraint(Sketcher.Constraint("Tangent", 10, 2, 11, 2))
sketch6.addConstraint(Sketcher.Constraint("Tangent", 11, 1, 12, 1))
sketch6.addConstraint(Sketcher.Constraint("Tangent", 12, 2, 13, 2))
sketch6.addConstraint(Sketcher.Constraint("Tangent", 13, 1, 14, 1))
sketch6.addConstraint(Sketcher.Constraint("Tangent", 14, 2, 15, 2))
sketch6.addConstraint(Sketcher.Constraint("Tangent", 15, 1, 8, 1))
sketch6.addConstraint(Sketcher.Constraint("Horizontal", 0))
sketch6.addConstraint(Sketcher.Constraint("Vertical", 2))
sketch6.addConstraint(Sketcher.Constraint("Horizontal", 4))
sketch6.addConstraint(Sketcher.Constraint("Vertical", 6))
sketch6.addConstraint(Sketcher.Constraint("Vertical", 8))
sketch6.addConstraint(Sketcher.Constraint("Horizontal", 10))
sketch6.addConstraint(Sketcher.Constraint("Vertical", 12))
sketch6.addConstraint(Sketcher.Constraint("Horizontal", 14))
sketch6.addConstraint(Sketcher.Constraint("Equal", 1, 3))
sketch6.addConstraint(Sketcher.Constraint("Equal", 3, 5))
sketch6.addConstraint(Sketcher.Constraint("Equal", 5, 7))
sketch6.addConstraint(Sketcher.Constraint("Equal", 7, 9))
sketch6.addConstraint(Sketcher.Constraint("Equal", 9, 11))
sketch6.addConstraint(Sketcher.Constraint("Equal", 11, 13))
sketch6.addConstraint(Sketcher.Constraint("Equal", 13, 15))
sketch6.addConstraint(Sketcher.Constraint("Symmetric", 5, 3, 9, 3, -2))
sketch6.addConstraint(Sketcher.Constraint("Symmetric", 1, 3, 13, 3, -2))
sketch6.addConstraint(Sketcher.Constraint("Radius", 1, Q("1 mm")))
sketch6.addConstraint(Sketcher.Constraint("DistanceX", 0, 2, 0, 1, Q("16.5 mm")))
sketch6.addConstraint(Sketcher.Constraint("DistanceY", 2, 1, 2, 2, Q("15.5 mm")))
sketch6.addConstraint(Sketcher.Constraint("DistanceX", 1, 3, -1, 1, Q("23.9 mm")))
sketch6.addConstraint(Sketcher.Constraint("DistanceY", -1, 1, 1, 3, Q("34.798739 mm")))
sketch6.setExpression("Constraints[33]", "Params.sketch6_radius")
sketch6.setExpression("Constraints[34]", "Params.sketch6_width")
sketch6.setExpression("Constraints[35]", "Params.sketch6_height")
pad6 = body.newObject("PartDesign::Pad", "Pad005")
pad6.Profile = sketch6
pad6.setExpression("Length", "Params.pad6_length")
pad6.Reversed = True

# Sketch on XY plane
sketch7 = body.newObject("Sketcher::SketchObject", "Sketch006")
sketch7.AttachmentSupport = (doc.getObject("XY_Plane"), [""])
sketch7.MapMode = "FlatFace"
sketch7.addGeometry(Part.Circle(Vector(15.6, 40.2, 0), Vector(0, 0, 1), 2.5), False)
sketch7.addGeometry(Part.Circle(Vector(15.6, 40.2, 0), Vector(0, 0, 1), 1.1), False)
sketch7.addConstraint(Sketcher.Constraint("Coincident", 1, 3, 0, 3))
sketch7.addConstraint(Sketcher.Constraint("Diameter", 0, Q("5 mm")))
sketch7.addConstraint(Sketcher.Constraint("Diameter", 1, Q("2.3 mm")))
sketch7.addConstraint(Sketcher.Constraint("DistanceX", -1, 1, 0, 3, Q("15.605003 mm")))
sketch7.addConstraint(Sketcher.Constraint("DistanceY", -1, 1, 0, 3, Q("40.204414 mm")))
sketch7.setExpression("Constraints[1]", "Params.sketch7_diameter")
sketch7.setExpression("Constraints[2]", "Params.sketch7_diameter2")
pad7 = body.newObject("PartDesign::Pad", "Pad006")
pad7.Profile = sketch7
pad7.setExpression("Length", "Params.pad7_length")

# Sketch on XY plane
sketch8 = body.newObject("Sketcher::SketchObject", "Sketch007")
sketch8.AttachmentSupport = (doc.getObject("XY_Plane"), [""])
sketch8.MapMode = "FlatFace"
sketch8.addGeometry(Part.ArcOfCircle(Part.Circle(Vector(11.8, 34.4, 0), Vector(0, 0, 1), 2.5), math.radians(-14.02), math.radians(0)), False)
sketch8.addGeometry(Part.ArcOfCircle(Part.Circle(Vector(11.8, 34.4, 0), Vector(0, 0, 1), 2.5), math.radians(0), math.radians(194)), False)
sketch8.addGeometry(Part.ArcOfCircle(Part.Circle(Vector(11.8, 34.4, 0), Vector(0, 0, 1), 2.5), math.radians(-166), math.radians(-14)), False)
sketch8.addGeometry(Part.ArcOfCircle(Part.Circle(Vector(11.8, 34.4, 0), Vector(0, 0, 1), 1.1), math.radians(0), math.radians(212)), False)
sketch8.addGeometry(Part.ArcOfCircle(Part.Circle(Vector(11.8, 34.4, 0), Vector(0, 0, 1), 1.1), math.radians(-32), math.radians(0)), False)
sketch8.addGeometry(Part.ArcOfCircle(Part.Circle(Vector(11.8, 34.4, 0), Vector(0, 0, 1), 1.1), math.radians(-148), math.radians(-32)), False)
sketch8.addGeometry(Part.Circle(Vector(11.8, 46, 0), Vector(0, 0, 1), 2.5), False)
sketch8.addGeometry(Part.Circle(Vector(11.8, 46, 0), Vector(0, 0, 1), 1.1), False)
sketch8.addConstraint(Sketcher.Constraint("Tangent", 0, 2, 1, 1))
sketch8.addConstraint(Sketcher.Constraint("Tangent", 1, 2, 2, 1))
sketch8.addConstraint(Sketcher.Constraint("Tangent", 2, 2, 0, 1))
sketch8.addConstraint(Sketcher.Constraint("Tangent", 3, 1, 4, 2))
sketch8.addConstraint(Sketcher.Constraint("Tangent", 4, 1, 5, 2))
sketch8.addConstraint(Sketcher.Constraint("Tangent", 5, 1, 3, 2))
sketch8.addConstraint(Sketcher.Constraint("Coincident", 3, 3, 0, 3))
sketch8.addConstraint(Sketcher.Constraint("Coincident", 7, 3, 6, 3))
sketch8.addConstraint(Sketcher.Constraint("Equal", 2, 6))
sketch8.addConstraint(Sketcher.Constraint("Equal", 5, 7))
sketch8.addConstraint(Sketcher.Constraint("Horizontal", 5, 3, 0, 2))
sketch8.addConstraint(Sketcher.Constraint("Horizontal", 1, 2, 2, 2))
sketch8.addConstraint(Sketcher.Constraint("Horizontal", 0, 2, 3, 1))
sketch8.addConstraint(Sketcher.Constraint("Horizontal", 2, 2, 4, 1))
sketch8.addConstraint(Sketcher.Constraint("Horizontal", 4, 1, 5, 1))
sketch8.addConstraint(Sketcher.Constraint("Vertical", 5, 3, 6, 3))
sketch8.addConstraint(Sketcher.Constraint("Diameter", 6, Q("5 mm")))
sketch8.addConstraint(Sketcher.Constraint("Diameter", 7, Q("2.3 mm")))
sketch8.addConstraint(Sketcher.Constraint("DistanceY", 1, 3, 6, 3, Q("11.6 mm")))
sketch8.addConstraint(Sketcher.Constraint("DistanceX", -1, 1, 1, 2, Q("9.379481 mm")))
sketch8.addConstraint(Sketcher.Constraint("DistanceY", -1, 1, 1, 2, Q("33.798739 mm")))
sketch8.addConstraint(Sketcher.Constraint("DistanceX", -1, 1, 4, 1, Q("12.78258 mm")))
sketch8.setExpression("Constraints[16]", "Params.sketch8_diameter")
sketch8.setExpression("Constraints[17]", "Params.sketch8_diameter2")
pad8 = body.newObject("PartDesign::Pad", "Pad007")
pad8.Profile = sketch8
pad8.setExpression("Length", "Params.pad8_length")

# Sketch on XY plane
sketch9 = body.newObject("Sketcher::SketchObject", "Sketch008")
sketch9.AttachmentSupport = (doc.getObject("XY_Plane"), [""])
sketch9.MapMode = "FlatFace"
sketch9.AttachmentOffset = App.Placement(Vector(0, 0, 16), App.Rotation())
add_polygon(sketch9, [(14.3, 38.7), (12.6, 36.4), (13, 35.7), (14.9, 38.2)])  # lines 0-3
add_polygon(sketch9, [(15.3, 42.1), (13.4, 44.7), (13, 44), (14.7, 41.6)])  # lines 4-7
sketch9.addConstraint(Sketcher.Constraint("Parallel", 0, 2))
sketch9.addConstraint(Sketcher.Constraint("Perpendicular", 2, 3))
sketch9.addConstraint(Sketcher.Constraint("Parallel", 4, 6))
sketch9.addConstraint(Sketcher.Constraint("Perpendicular", 6, 7))
sketch9.addConstraint(Sketcher.Constraint("Vertical", 1, 2, 5, 2))
sketch9.addConstraint(Sketcher.Constraint("DistanceY", 2, 2, 5, 2, Q("5.749999 mm")))
sketch9.addConstraint(Sketcher.Constraint("Distance", 2, Q("3.154898 mm")))
sketch9.addConstraint(Sketcher.Constraint("DistanceX", 3, 2, 6, 2, Q("0.4214 mm")))
sketch9.addConstraint(Sketcher.Constraint("DistanceY", 3, 2, 6, 2, Q("2.949799 mm")))
sketch9.addConstraint(Sketcher.Constraint("Distance", 0, Q("2.839571 mm")))
sketch9.addConstraint(Sketcher.Constraint("Distance", 4, Q("3.211889 mm")))
sketch9.addConstraint(Sketcher.Constraint("Distance", 5, Q("0.80797 mm")))
sketch9.addConstraint(Sketcher.Constraint("Distance", 6, Q("2.93217 mm")))
sketch9.addConstraint(Sketcher.Constraint("DistanceY", -1, 1, 1, 2, Q("35.742381 mm")))
sketch9.addConstraint(Sketcher.Constraint("DistanceY", -1, 1, 4, 2, Q("44.66895 mm")))
sketch9.addConstraint(Sketcher.Constraint("DistanceX", -1, 1, 7, 2, Q("15.320709 mm")))
pad9 = body.newObject("PartDesign::Pad", "Pad008")
pad9.Profile = sketch9
pad9.setExpression("Length", "Params.pad9_length")
pad9.Reversed = True

doc.recompute()
